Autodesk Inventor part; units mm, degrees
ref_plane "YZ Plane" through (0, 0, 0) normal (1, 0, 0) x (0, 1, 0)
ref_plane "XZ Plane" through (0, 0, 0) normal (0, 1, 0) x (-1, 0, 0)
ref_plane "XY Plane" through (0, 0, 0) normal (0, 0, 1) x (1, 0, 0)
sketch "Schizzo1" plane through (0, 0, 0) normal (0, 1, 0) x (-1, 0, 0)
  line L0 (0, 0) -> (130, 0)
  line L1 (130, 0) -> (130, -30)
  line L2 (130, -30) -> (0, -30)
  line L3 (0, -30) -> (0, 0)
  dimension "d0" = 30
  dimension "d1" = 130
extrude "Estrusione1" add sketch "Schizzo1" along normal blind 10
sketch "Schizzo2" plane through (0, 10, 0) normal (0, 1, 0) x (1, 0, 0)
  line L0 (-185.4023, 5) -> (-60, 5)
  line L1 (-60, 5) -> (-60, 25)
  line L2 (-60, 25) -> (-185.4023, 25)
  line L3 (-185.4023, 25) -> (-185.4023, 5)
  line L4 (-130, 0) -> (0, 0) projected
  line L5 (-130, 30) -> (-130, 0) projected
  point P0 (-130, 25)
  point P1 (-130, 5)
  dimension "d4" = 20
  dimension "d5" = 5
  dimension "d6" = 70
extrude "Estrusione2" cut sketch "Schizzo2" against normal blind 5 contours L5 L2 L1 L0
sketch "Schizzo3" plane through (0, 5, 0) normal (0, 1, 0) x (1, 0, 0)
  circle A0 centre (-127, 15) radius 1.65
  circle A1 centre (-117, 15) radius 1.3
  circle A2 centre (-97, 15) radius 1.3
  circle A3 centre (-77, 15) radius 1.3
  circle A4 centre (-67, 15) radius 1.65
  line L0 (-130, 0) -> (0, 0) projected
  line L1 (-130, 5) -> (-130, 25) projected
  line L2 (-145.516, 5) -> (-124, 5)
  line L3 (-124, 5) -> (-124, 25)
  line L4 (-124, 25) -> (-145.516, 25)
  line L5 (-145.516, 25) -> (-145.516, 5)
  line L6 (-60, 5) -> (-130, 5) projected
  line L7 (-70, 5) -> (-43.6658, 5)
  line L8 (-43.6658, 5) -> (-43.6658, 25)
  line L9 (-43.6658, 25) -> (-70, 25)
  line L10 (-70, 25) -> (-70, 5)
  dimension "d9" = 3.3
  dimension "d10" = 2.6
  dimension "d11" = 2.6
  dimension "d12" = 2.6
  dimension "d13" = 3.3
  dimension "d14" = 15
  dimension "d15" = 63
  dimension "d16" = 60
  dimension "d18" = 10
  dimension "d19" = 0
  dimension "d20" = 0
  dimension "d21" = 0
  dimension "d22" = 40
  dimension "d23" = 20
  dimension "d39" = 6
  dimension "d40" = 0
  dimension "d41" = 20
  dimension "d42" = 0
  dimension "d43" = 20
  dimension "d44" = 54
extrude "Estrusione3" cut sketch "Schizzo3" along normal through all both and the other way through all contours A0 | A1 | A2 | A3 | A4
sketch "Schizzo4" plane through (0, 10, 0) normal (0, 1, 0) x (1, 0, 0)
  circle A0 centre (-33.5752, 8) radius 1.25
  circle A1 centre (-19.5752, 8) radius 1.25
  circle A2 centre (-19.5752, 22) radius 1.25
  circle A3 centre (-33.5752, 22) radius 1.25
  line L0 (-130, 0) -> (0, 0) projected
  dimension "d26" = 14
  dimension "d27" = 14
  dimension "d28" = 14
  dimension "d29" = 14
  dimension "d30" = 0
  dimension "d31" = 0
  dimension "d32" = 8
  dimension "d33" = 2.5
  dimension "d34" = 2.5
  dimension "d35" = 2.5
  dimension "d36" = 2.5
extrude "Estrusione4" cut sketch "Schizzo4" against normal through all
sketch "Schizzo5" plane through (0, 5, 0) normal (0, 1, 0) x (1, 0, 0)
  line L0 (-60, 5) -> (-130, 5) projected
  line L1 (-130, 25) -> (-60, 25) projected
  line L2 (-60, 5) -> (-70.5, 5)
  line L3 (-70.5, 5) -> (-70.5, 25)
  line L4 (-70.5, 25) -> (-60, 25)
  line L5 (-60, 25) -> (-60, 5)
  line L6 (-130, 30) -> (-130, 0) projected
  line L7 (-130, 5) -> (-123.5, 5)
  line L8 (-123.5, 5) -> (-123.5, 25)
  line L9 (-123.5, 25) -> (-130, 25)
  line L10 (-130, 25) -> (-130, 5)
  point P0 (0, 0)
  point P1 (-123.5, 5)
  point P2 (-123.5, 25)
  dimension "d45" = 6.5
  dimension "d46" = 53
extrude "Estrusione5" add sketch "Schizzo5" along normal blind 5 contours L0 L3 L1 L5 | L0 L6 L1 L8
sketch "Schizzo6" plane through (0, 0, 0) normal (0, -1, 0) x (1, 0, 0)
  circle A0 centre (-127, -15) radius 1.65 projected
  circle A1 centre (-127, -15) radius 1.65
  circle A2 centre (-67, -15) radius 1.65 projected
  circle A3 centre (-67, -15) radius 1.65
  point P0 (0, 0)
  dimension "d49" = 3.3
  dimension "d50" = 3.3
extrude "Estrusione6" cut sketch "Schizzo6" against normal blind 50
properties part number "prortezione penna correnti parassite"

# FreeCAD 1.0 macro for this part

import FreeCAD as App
import Part
import Sketcher
from FreeCAD import Vector
Q = App.Units.Quantity


def add_polygon(sketch, points):
    """Adds a closed chain of lines whose ends are joined by coincident constraints."""
    first, n = sketch.GeometryCount, len(points)
    for a, b in zip(points, points[1:] + points[:1]):
        sketch.addGeometry(Part.LineSegment(App.Vector(*a, 0), App.Vector(*b, 0)), False)
    for i in range(n):
        sketch.addConstraint(Sketcher.Constraint("Coincident", first + i, 2, first + (i + 1) % n, 1))

doc = App.newDocument("Part")
body = doc.addObject("PartDesign::Body", "Body")

sketch1 = body.newObject("Sketcher::SketchObject", "Sketch")
sketch1.AttachmentSupport = (doc.getObject("XZ_Plane"), [""])
sketch1.MapMode = "FlatFace"
add_polygon(sketch1, [(-130, 0), (0, 0), (0, -30), (-130, -30)])
sketch1.addConstraint(Sketcher.Constraint("Horizontal", 0))
sketch1.addConstraint(Sketcher.Constraint("Vertical", 1))
sketch1.addConstraint(Sketcher.Constraint("Horizontal", 2))
sketch1.addConstraint(Sketcher.Constraint("Vertical", 3))
sketch1.addConstraint(Sketcher.Constraint("Coincident", 0, 2, -1, 1))
sketch1.addConstraint(Sketcher.Constraint("DistanceX", 0, 1, 0, 2, Q("130 mm")))
sketch1.addConstraint(Sketcher.Constraint("DistanceY", 1, 2, 1, 1, Q("30 mm")))
pad1 = body.newObject("PartDesign::Pad", "Pad")
pad1.Profile = sketch1
pad1.Length = 10
pad1.Reversed = True

sketch2 = body.newObject("Sketcher::SketchObject", "Sketch001")
sketch2.AttachmentSupport = (doc.getObject("XZ_Plane"), [""])
sketch2.MapMode = "FlatFace"
sketch2.AttachmentOffset = App.Placement(Vector(0, 0, -10), App.Rotation())
add_polygon(sketch2, [(-130, -25), (-130, -5), (-60, -5), (-60, -25)])
sketch2.addConstraint(Sketcher.Constraint("Vertical", 0))
sketch2.addConstraint(Sketcher.Constraint("Horizontal", 1))
sketch2.addConstraint(Sketcher.Constraint("Vertical", 2))
sketch2.addConstraint(Sketcher.Constraint("Horizontal", 3))
sketch2.addConstraint(Sketcher.Constraint("DistanceX", 1, 1, 1, 2, Q("70 mm")))
sketch2.addConstraint(Sketcher.Constraint("DistanceY", 0, 1, 0, 2, Q("20 mm")))
sketch2.addConstraint(Sketcher.Constraint("DistanceY", 0, 2, -1, 1, Q("5 mm")))
sketch2.addConstraint(Sketcher.Constraint("DistanceX", 0, 2, -1, 1, Q("130 mm")))
pocket1 = body.newObject("PartDesign::Pocket", "Pocket")
pocket1.Profile = sketch2
pocket1.Length = 5
pocket1.Reversed = True

sketch3 = body.newObject("Sketcher::SketchObject", "Sketch002")
sketch3.AttachmentSupport = (doc.getObject("XZ_Plane"), [""])
sketch3.MapMode = "FlatFace"
sketch3.AttachmentOffset = App.Placement(Vector(0, 0, -5), App.Rotation())
sketch3.addGeometry(Part.Circle(Vector(-127, -15, 0), Vector(0, 0, 1), 1.6), False)
sketch3.addGeometry(Part.Circle(Vector(-117, -15, 0), Vector(0, 0, 1), 1.3), False)
sketch3.addGeometry(Part.Circle(Vector(-97, -15, 0), Vector(0, 0, 1), 1.3), False)
sketch3.addGeometry(Part.Circle(Vector(-77, -15, 0), Vector(0, 0, 1), 1.3), False)
sketch3.addGeometry(Part.Circle(Vector(-67, -15, 0), Vector(0, 0, 1), 1.6), False)
sketch3.addConstraint(Sketcher.Constraint("Equal", 1, 2))
sketch3.addConstraint(Sketcher.Constraint("Equal", 2, 3))
sketch3.addConstraint(Sketcher.Constraint("Equal", 0, 4))
sketch3.addConstraint(Sketcher.Constraint("Horizontal", 0, 3, 1, 3))
sketch3.addConstraint(Sketcher.Constraint("Horizontal", 1, 3, 2, 3))
sketch3.addConstraint(Sketcher.Constraint("Horizontal", 2, 3, 3, 3))
sketch3.addConstraint(Sketcher.Constraint("Horizontal", 3, 3, 4, 3))
sketch3.addConstraint(Sketcher.Constraint("Diameter", 0, Q("3.3 mm")))
sketch3.addConstraint(Sketcher.Constraint("Diameter", 1, Q("2.6 mm")))
sketch3.addConstraint(Sketcher.Constraint("DistanceY", 0, 3, -1, 1, Q("15 mm")))
sketch3.addConstraint(Sketcher.Constraint("DistanceX", 0, 3, 1, 3, Q("10 mm")))
sketch3.addConstraint(Sketcher.Constraint("DistanceX", 1, 3, 2, 3, Q("20 mm")))
sketch3.addConstraint(Sketcher.Constraint("DistanceX", 2, 3, 3, 3, Q("20 mm")))
sketch3.addConstraint(Sketcher.Constraint("DistanceX", 3, 3, 4, 3, Q("10 mm")))
sketch3.addConstraint(Sketcher.Constraint("DistanceX", 0, 3, -1, 1, Q("127 mm")))
pocket2 = body.newObject("PartDesign::Pocket", "Pocket001")
pocket2.Profile = sketch3
pocket2.Type = "ThroughAll"
pocket2.Midplane = True

sketch4 = body.newObject("Sketcher::SketchObject", "Sketch003")
sketch4.AttachmentSupport = (doc.getObject("XZ_Plane"), [""])
sketch4.MapMode = "FlatFace"
sketch4.AttachmentOffset = App.Placement(Vector(0, 0, -10), App.Rotation())
sketch4.addGeometry(Part.Circle(Vector(-33.6, -8, 0), Vector(0, 0, 1), 1.2), False)
sketch4.addGeometry(Part.Circle(Vector(-19.6, -8, 0), Vector(0, 0, 1), 1.2), False)
sketch4.addGeometry(Part.Circle(Vector(-19.6, -22, 0), Vector(0, 0, 1), 1.2), False)
sketch4.addGeometry(Part.Circle(Vector(-33.6, -22, 0), Vector(0, 0, 1), 1.2), False)
sketch4.addConstraint(Sketcher.Constraint("Equal", 0, 1))
sketch4.addConstraint(Sketcher.Constraint("Equal", 1, 2))
sketch4.addConstraint(Sketcher.Constraint("Equal", 2, 3))
sketch4.addConstraint(Sketcher.Constraint("Horizontal", 0, 3, 1, 3))
sketch4.addConstraint(Sketcher.Constraint("Horizontal", 2, 3, 3, 3))
sketch4.addConstraint(Sketcher.Constraint("Vertical", 1, 3, 2, 3))
sketch4.addConstraint(Sketcher.Constraint("Vertical", 0, 3, 3, 3))
sketch4.addConstraint(Sketcher.Constraint("Diameter", 0, Q("2.5 mm")))
sketch4.addConstraint(Sketcher.Constraint("DistanceY", 0, 3, -1, 1, Q("8 mm")))
sketch4.addConstraint(Sketcher.Constraint("DistanceX", 0, 3, 1, 3, Q("14 mm")))
sketch4.addConstraint(Sketcher.Constraint("DistanceY", 2, 3, 1, 3, Q("14 mm")))
sketch4.addConstraint(Sketcher.Constraint("DistanceX", 0, 3, -1, 1, Q("33.5752 mm")))
pocket3 = body.newObject("PartDesign::Pocket", "Pocket002")
pocket3.Profile = sketch4
pocket3.Type = "ThroughAll"
pocket3.Reversed = True

sketch5 = body.newObject("Sketcher::SketchObject", "Sketch004")
sketch5.AttachmentSupport = (doc.getObject("XZ_Plane"), [""])
sketch5.MapMode = "FlatFace"
sketch5.AttachmentOffset = App.Placement(Vector(0, 0, -5), App.Rotation())
add_polygon(sketch5, [(-70, -5), (-60, -5), (-60, -25), (-70, -25)])
add_polygon(sketch5, [(-130, -5), (-124, -5), (-124, -25), (-130, -25)])
sketch5.addConstraint(Sketcher.Constraint("Horizontal", 0))
sketch5.addConstraint(Sketcher.Constraint("Vertical", 1))
sketch5.addConstraint(Sketcher.Constraint("Horizontal", 2))
sketch5.addConstraint(Sketcher.Constraint("Vertical", 3))
sketch5.addConstraint(Sketcher.Constraint("Horizontal", 4))
sketch5.addConstraint(Sketcher.Constraint("Vertical", 5))
sketch5.addConstraint(Sketcher.Constraint("Horizontal", 6))
sketch5.addConstraint(Sketcher.Constraint("Vertical", 7))
sketch5.addConstraint(Sketcher.Constraint("Horizontal", 3, 2, 4, 2))
sketch5.addConstraint(Sketcher.Constraint("Horizontal", 2, 2, 5, 2))
sketch5.addConstraint(Sketcher.Constraint("DistanceX", 4, 1, 4, 2, Q("6.5 mm")))
sketch5.addConstraint(Sketcher.Constraint("DistanceX", 4, 2, 3, 2, Q("53 mm")))
sketch5.addConstraint(Sketcher.Constraint("DistanceY", 1, 2, 1, 1, Q("20 mm")))
sketch5.addConstraint(Sketcher.Constraint("DistanceX", 0, 1, 0, 2, Q("10.5 mm")))
sketch5.addConstraint(Sketcher.Constraint("DistanceX", 0, 2, -1, 1, Q("60 mm")))
sketch5.addConstraint(Sketcher.Constraint("DistanceY", 0, 2, -1, 1, Q("5 mm")))
pad2 = body.newObject("PartDesign::Pad", "Pad001")
pad2.Profile = sketch5
pad2.Length = 5
pad2.Reversed = True

sketch6 = body.newObject("Sketcher::SketchObject", "Sketch005")
sketch6.AttachmentSupport = (doc.getObject("XZ_Plane"), [""])
sketch6.MapMode = "FlatFace"
sketch6.addGeometry(Part.Circle(Vector(-127, -15, 0), Vector(0, 0, 1), 1.6), False)
sketch6.addGeometry(Part.Circle(Vector(-67, -15, 0), Vector(0, 0, 1), 1.6), False)
sketch6.addConstraint(Sketcher.Constraint("Equal", 0, 1))
sketch6.addConstraint(Sketcher.Constraint("Horizontal", 0, 3, 1, 3))
sketch6.addConstraint(Sketcher.Constraint("Diameter", 0, Q("3.3 mm")))
sketch6.addConstraint(Sketcher.Constraint("DistanceX", 0, 3, -1, 1, Q("127 mm")))
sketch6.addConstraint(Sketcher.Constraint("DistanceY", 0, 3, -1, 1, Q("15 mm")))
sketch6.addConstraint(Sketcher.Constraint("DistanceX", 1, 3, -1, 1, Q("67 mm")))
pocket4 = body.newObject("PartDesign::Pocket", "Pocket003")
pocket4.Profile = sketch6
pocket4.Length = 50

doc.recompute()
